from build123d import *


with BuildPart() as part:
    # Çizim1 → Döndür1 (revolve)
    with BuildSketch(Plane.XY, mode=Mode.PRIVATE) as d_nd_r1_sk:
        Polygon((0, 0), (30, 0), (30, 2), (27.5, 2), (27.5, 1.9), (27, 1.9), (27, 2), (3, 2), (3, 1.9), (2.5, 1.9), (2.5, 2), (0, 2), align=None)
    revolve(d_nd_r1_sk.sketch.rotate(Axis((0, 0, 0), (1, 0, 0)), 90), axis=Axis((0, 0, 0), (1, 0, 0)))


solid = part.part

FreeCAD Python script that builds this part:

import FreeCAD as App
import Part
import Sketcher
from FreeCAD import Vector


def add_polygon(sketch, points):
    """Adds a closed chain of lines whose ends are joined by coincident constraints."""
    first, n = sketch.GeometryCount, len(points)
    for a, b in zip(points, points[1:] + points[:1]):
        sketch.addGeometry(Part.LineSegment(App.Vector(*a, 0), App.Vector(*b, 0)), False)
    for i in range(n):
        sketch.addConstraint(Sketcher.Constraint("Coincident", first + i, 2, first + (i + 1) % n, 1))

doc = App.newDocument("Part")
body = doc.addObject("PartDesign::Body", "Body")

# Sketch on XY plane
sketch1 = body.newObject("Sketcher::SketchObject", "Sketch")
sketch1.AttachmentSupport = (doc.getObject("XY_Plane"), [""])
sketch1.MapMode = "FlatFace"
add_polygon(sketch1, [(0, 0), (30, 0), (30, 2), (27.5, 2), (27.5, 1.9), (27, 1.9), (27, 2), (3, 2), (3, 1.9), (2.5, 1.9), (2.5, 2), (0, 2)])  # lines 0-11
sketch1.addConstraint(Sketcher.Constraint("Horizontal", 0))
sketch1.addConstraint(Sketcher.Constraint("Vertical", 1))
sketch1.addConstraint(Sketcher.Constraint("Horizontal", 2))
sketch1.addConstraint(Sketcher.Constraint("Vertical", 3))
sketch1.addConstraint(Sketcher.Constraint("Horizontal", 4))
sketch1.addConstraint(Sketcher.Constraint("Vertical", 5))
sketch1.addConstraint(Sketcher.Constraint("Horizontal", 6))
sketch1.addConstraint(Sketcher.Constraint("Vertical", 7))
sketch1.addConstraint(Sketcher.Constraint("Horizontal", 8))
sketch1.addConstraint(Sketcher.Constraint("Vertical", 9))
sketch1.addConstraint(Sketcher.Constraint("Horizontal", 10))
sketch1.addConstraint(Sketcher.Constraint("Vertical", 11))
sketch1.addConstraint(Sketcher.Constraint("Coincident", 11, 2, -1, 1))
sketch1.addConstraint(Sketcher.Constraint("Horizontal", 2, 2, 5, 2))
sketch1.addConstraint(Sketcher.Constraint("Horizontal", 4, 2, 7, 2))
sketch1.addConstraint(Sketcher.Constraint("Horizontal", 6, 2, 9, 2))
sketch1.addConstraint(Sketcher.Constraint("Equal", 4, 8))
sketch1.addConstraint(Sketcher.Constraint("Equal", 2, 10))
sketch1.addConstraint(Sketcher.Constraint("DistanceX", 0, 1, 0, 2, 30.0))
sketch1.addConstraint(Sketcher.Constraint("DistanceX", 6, 2, 6, 1, 24.0))
sketch1.addConstraint(Sketcher.Constraint("DistanceY", 1, 1, 1, 2, 2.0))
sketch1.addConstraint(Sketcher.Constraint("DistanceX", 2, 2, 2, 1, 2.5))
sketch1.addConstraint(Sketcher.Constraint("DistanceY", 3, 2, 3, 1, 0.1))
revolution = body.newObject("PartDesign::Revolution", "Revolution")
revolution.Profile = sketch1
revolution.ReferenceAxis = (sketch1, ["H_Axis"])
revolution.Angle = 360

doc.recompute()
